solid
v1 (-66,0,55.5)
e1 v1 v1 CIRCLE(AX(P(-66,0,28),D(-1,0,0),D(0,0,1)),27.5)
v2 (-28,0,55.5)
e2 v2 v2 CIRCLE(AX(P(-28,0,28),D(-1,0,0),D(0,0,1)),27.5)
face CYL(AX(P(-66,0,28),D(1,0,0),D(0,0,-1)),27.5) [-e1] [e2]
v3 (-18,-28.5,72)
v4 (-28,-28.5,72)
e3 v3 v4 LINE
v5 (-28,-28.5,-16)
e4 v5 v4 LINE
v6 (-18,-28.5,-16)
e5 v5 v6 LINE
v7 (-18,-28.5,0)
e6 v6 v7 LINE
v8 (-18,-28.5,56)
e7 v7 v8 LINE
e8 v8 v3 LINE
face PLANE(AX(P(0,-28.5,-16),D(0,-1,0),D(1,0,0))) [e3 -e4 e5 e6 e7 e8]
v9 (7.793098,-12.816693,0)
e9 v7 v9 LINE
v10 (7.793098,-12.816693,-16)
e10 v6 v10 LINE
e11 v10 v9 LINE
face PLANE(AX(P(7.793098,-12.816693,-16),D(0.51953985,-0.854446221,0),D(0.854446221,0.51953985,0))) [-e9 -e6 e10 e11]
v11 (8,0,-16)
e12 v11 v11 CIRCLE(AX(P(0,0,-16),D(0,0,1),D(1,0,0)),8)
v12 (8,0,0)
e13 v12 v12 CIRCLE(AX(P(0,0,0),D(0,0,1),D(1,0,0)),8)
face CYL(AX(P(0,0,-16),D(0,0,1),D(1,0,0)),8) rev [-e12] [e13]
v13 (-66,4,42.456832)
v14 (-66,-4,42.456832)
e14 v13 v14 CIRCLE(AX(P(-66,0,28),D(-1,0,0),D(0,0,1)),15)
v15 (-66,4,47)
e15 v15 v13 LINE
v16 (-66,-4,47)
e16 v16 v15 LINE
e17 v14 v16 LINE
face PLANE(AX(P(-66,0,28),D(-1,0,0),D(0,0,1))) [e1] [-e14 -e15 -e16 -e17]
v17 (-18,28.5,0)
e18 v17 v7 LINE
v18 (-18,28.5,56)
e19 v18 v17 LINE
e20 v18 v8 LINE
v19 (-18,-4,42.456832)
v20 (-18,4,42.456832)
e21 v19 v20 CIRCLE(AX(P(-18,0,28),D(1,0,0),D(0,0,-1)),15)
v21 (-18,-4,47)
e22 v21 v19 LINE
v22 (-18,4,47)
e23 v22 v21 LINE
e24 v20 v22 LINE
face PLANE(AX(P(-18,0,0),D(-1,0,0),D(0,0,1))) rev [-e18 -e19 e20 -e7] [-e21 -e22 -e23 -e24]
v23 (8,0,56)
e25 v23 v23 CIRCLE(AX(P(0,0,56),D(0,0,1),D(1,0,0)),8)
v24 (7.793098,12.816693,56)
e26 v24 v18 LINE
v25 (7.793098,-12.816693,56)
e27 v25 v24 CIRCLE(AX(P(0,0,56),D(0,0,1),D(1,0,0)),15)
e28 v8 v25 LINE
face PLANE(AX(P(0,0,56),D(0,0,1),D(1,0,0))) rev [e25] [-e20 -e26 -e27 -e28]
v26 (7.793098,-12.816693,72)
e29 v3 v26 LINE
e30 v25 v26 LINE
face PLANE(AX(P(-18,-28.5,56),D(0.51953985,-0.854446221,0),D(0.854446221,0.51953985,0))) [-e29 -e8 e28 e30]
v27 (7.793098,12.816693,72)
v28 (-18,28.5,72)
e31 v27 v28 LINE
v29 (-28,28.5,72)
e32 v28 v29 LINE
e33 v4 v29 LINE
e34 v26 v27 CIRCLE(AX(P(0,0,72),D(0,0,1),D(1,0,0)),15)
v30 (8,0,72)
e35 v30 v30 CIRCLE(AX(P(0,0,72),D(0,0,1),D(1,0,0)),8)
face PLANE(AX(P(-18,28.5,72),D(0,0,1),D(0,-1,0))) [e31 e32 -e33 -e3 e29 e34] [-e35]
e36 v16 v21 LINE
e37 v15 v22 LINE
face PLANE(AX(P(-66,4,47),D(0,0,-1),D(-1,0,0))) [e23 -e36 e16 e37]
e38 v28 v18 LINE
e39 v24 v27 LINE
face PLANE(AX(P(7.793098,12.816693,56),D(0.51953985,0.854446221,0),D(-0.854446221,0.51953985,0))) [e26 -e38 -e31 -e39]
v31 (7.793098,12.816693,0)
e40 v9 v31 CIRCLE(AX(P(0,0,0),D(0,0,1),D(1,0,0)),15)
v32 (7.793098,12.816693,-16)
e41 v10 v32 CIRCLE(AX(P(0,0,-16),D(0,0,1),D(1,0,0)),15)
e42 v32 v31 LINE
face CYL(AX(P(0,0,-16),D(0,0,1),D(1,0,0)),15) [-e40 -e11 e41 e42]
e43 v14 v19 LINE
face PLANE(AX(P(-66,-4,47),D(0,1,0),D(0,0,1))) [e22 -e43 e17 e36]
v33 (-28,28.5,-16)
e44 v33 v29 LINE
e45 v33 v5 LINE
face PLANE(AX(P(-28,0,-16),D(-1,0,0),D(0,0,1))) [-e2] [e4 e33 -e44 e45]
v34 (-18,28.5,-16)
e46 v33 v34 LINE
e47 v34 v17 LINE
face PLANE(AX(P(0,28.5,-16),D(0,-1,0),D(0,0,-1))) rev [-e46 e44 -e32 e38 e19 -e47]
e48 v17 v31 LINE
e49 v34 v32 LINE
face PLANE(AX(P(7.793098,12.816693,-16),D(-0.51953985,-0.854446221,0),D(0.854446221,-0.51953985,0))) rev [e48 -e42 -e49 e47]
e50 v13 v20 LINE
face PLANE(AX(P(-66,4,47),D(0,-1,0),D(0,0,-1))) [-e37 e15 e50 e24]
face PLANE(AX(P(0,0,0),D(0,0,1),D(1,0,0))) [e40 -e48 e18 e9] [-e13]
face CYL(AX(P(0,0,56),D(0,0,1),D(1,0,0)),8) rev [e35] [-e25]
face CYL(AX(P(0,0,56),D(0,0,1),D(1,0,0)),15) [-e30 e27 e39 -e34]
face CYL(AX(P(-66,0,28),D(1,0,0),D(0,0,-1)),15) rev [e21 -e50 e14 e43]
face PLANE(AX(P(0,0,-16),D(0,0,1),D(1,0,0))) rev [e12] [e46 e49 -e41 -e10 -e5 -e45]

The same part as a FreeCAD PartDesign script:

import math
import FreeCAD as App
import Part
import Sketcher
Q = App.Units.Quantity

doc = App.newDocument("Part")
body = doc.addObject("PartDesign::Body", "Body")

# Sketch on XY plane
sketch1 = body.newObject("Sketcher::SketchObject", "Sketch")
sketch1.AttachmentSupport = (doc.getObject("XY_Plane"), [""])
sketch1.MapMode = "FlatFace"
sketch1.addGeometry(Part.LineSegment(App.Vector(-28, 28, 0), App.Vector(-28, -28, 0)), False)
sketch1.addGeometry(Part.LineSegment(App.Vector(-28, -28, 0), App.Vector(-18, -28, 0)), False)
sketch1.addGeometry(Part.LineSegment(App.Vector(-18, -28, 0), App.Vector(8, -13, 0)), False)
sketch1.addGeometry(Part.ArcOfCircle(Part.Circle(App.Vector(0, 0, 0), App.Vector(0, 0, 1), 15), math.radians(-59), math.radians(59)), False)
sketch1.addGeometry(Part.LineSegment(App.Vector(8, 13, 0), App.Vector(-18, 28, 0)), False)
sketch1.addGeometry(Part.LineSegment(App.Vector(-18, 28, 0), App.Vector(-28, 28, 0)), False)
sketch1.addGeometry(Part.Circle(App.Vector(0, 0, 0), App.Vector(0, 0, 1), 8), False)
sketch1.addConstraint(Sketcher.Constraint("Coincident", 0, 2, 1, 1))
sketch1.addConstraint(Sketcher.Constraint("Coincident", 1, 2, 2, 1))
sketch1.addConstraint(Sketcher.Constraint("Tangent", 2, 2, 3, 1))
sketch1.addConstraint(Sketcher.Constraint("Tangent", 3, 2, 4, 1))
sketch1.addConstraint(Sketcher.Constraint("Coincident", 4, 2, 5, 1))
sketch1.addConstraint(Sketcher.Constraint("Coincident", 5, 2, 0, 1))
sketch1.addConstraint(Sketcher.Constraint("Vertical", 0))
sketch1.addConstraint(Sketcher.Constraint("Horizontal", 1))
sketch1.addConstraint(Sketcher.Constraint("Horizontal", 5))
sketch1.addConstraint(Sketcher.Constraint("Coincident", 3, 3, -1, 1))
sketch1.addConstraint(Sketcher.Constraint("Coincident", 6, 3, -1, 1))
sketch1.addConstraint(Sketcher.Constraint("Symmetric", 1, 2, 4, 2, -1))
sketch1.addConstraint(Sketcher.Constraint("Diameter", 6, Q("16 mm")))
sketch1.addConstraint(Sketcher.Constraint("Radius", 3, Q("15 mm")))
sketch1.addConstraint(Sketcher.Constraint("DistanceX", 1, 1, 1, 2, Q("10 mm")))
sketch1.addConstraint(Sketcher.Constraint("DistanceY", 0, 2, 0, 1, Q("57 mm")))
sketch1.addConstraint(Sketcher.Constraint("DistanceX", 0, 2, -1, 1, Q("28 mm")))
pad1 = body.newObject("PartDesign::Pad", "Pad")
pad1.Profile = sketch1
pad1.Length = 16
pad1.Reversed = True

# Sketch on YZ plane
sketch2 = body.newObject("Sketcher::SketchObject", "Sketch001")
sketch2.AttachmentSupport = (doc.getObject("YZ_Plane"), [""])
sketch2.MapMode = "FlatFace"
sketch2.AttachmentOffset = App.Placement(App.Vector(0, 0, -28), App.Rotation())
sketch2.addGeometry(Part.LineSegment(App.Vector(28, -16, 0), App.Vector(-28, -16, 0)), False)
sketch2.addGeometry(Part.LineSegment(App.Vector(-28, -16, 0), App.Vector(-28, 72, 0)), False)
sketch2.addGeometry(Part.LineSegment(App.Vector(-28, 72, 0), App.Vector(28, 72, 0)), False)
sketch2.addGeometry(Part.LineSegment(App.Vector(28, 72, 0), App.Vector(28, -16, 0)), False)
sketch2.addConstraint(Sketcher.Constraint("Coincident", 0, 2, 1, 1))
sketch2.addConstraint(Sketcher.Constraint("Coincident", 1, 2, 2, 1))
sketch2.addConstraint(Sketcher.Constraint("Coincident", 2, 2, 3, 1))
sketch2.addConstraint(Sketcher.Constraint("Coincident", 3, 2, 0, 1))
sketch2.addConstraint(Sketcher.Constraint("Horizontal", 0))
sketch2.addConstraint(Sketcher.Constraint("Vertical", 1))
sketch2.addConstraint(Sketcher.Constraint("Horizontal", 2))
sketch2.addConstraint(Sketcher.Constraint("Vertical", 3))
sketch2.addConstraint(Sketcher.Constraint("DistanceX", 0, 2, 0, 1, Q("57 mm")))
sketch2.addConstraint(Sketcher.Constraint("DistanceY", 1, 1, 1, 2, Q("88 mm")))
sketch2.addConstraint(Sketcher.Constraint("DistanceY", 0, 2, -1, 1, Q("16 mm")))
sketch2.addConstraint(Sketcher.Constraint("DistanceX", 0, 2, -1, 1, Q("28.5 mm")))
pad2 = body.newObject("PartDesign::Pad", "Pad001")
pad2.Profile = sketch2
pad2.Length = 10

# Sketch on XY plane
sketch3 = body.newObject("Sketcher::SketchObject", "Sketch002")
sketch3.AttachmentSupport = (doc.getObject("XY_Plane"), [""])
sketch3.MapMode = "FlatFace"
sketch3.AttachmentOffset = App.Placement(App.Vector(0, 0, 72), App.Rotation())
sketch3.addGeometry(Part.LineSegment(App.Vector(8, 13, 0), App.Vector(-18, 28, 0)), False)
sketch3.addGeometry(Part.LineSegment(App.Vector(-18, 28, 0), App.Vector(-18, -28, 0)), False)
sketch3.addGeometry(Part.LineSegment(App.Vector(-18, -28, 0), App.Vector(8, -13, 0)), False)
sketch3.addGeometry(Part.ArcOfCircle(Part.Circle(App.Vector(0, 0, 0), App.Vector(0, 0, 1), 15), math.radians(-59), math.radians(59)), False)
sketch3.addGeometry(Part.Circle(App.Vector(0, 0, 0), App.Vector(0, 0, 1), 8), False)
sketch3.addConstraint(Sketcher.Constraint("Coincident", 0, 2, 1, 1))
sketch3.addConstraint(Sketcher.Constraint("Coincident", 1, 2, 2, 1))
sketch3.addConstraint(Sketcher.Constraint("Tangent", 2, 2, 3, 1))
sketch3.addConstraint(Sketcher.Constraint("Tangent", 3, 2, 0, 1))
sketch3.addConstraint(Sketcher.Constraint("Vertical", 1))
sketch3.addConstraint(Sketcher.Constraint("Coincident", 3, 3, -1, 1))
sketch3.addConstraint(Sketcher.Constraint("Coincident", 4, 3, -1, 1))
sketch3.addConstraint(Sketcher.Constraint("Vertical", 2, 2, 3, 2))
sketch3.addConstraint(Sketcher.Constraint("Diameter", 4, Q("16 mm")))
sketch3.addConstraint(Sketcher.Constraint("Radius", 3, Q("15 mm")))
sketch3.addConstraint(Sketcher.Constraint("DistanceY", 1, 2, 1, 1, Q("57 mm")))
sketch3.addConstraint(Sketcher.Constraint("DistanceX", 0, 2, -1, 1, Q("18 mm")))
pad3 = body.newObject("PartDesign::Pad", "Pad002")
pad3.Profile = sketch3
pad3.Length = 16
pad3.Reversed = True

# Sketch on YZ plane
sketch4 = body.newObject("Sketcher::SketchObject", "Sketch003")
sketch4.AttachmentSupport = (doc.getObject("YZ_Plane"), [""])
sketch4.MapMode = "FlatFace"
sketch4.AttachmentOffset = App.Placement(App.Vector(0, 0, -28), App.Rotation())
sketch4.addGeometry(Part.Circle(App.Vector(0, 28, 0), App.Vector(0, 0, 1), 27.5), False)
sketch4.addGeometry(Part.LineSegment(App.Vector(4, 42.5, 0), App.Vector(4, 47, 0)), False)
sketch4.addGeometry(Part.LineSegment(App.Vector(4, 47, 0), App.Vector(-4, 47, 0)), False)
sketch4.addGeometry(Part.LineSegment(App.Vector(-4, 47, 0), App.Vector(-4, 42.5, 0)), False)
sketch4.addGeometry(Part.ArcOfCircle(Part.Circle(App.Vector(0, 28, 0), App.Vector(0, 0, 1), 15), math.radians(105), math.radians(435)), False)
sketch4.addConstraint(Sketcher.Constraint("Coincident", 1, 2, 2, 1))
sketch4.addConstraint(Sketcher.Constraint("Coincident", 2, 2, 3, 1))
sketch4.addConstraint(Sketcher.Constraint("Coincident", 3, 2, 4, 1))
sketch4.addConstraint(Sketcher.Constraint("Coincident", 4, 2, 1, 1))
sketch4.addConstraint(Sketcher.Constraint("Vertical", 1))
sketch4.addConstraint(Sketcher.Constraint("Horizontal", 2))
sketch4.addConstraint(Sketcher.Constraint("Vertical", 3))
sketch4.addConstraint(Sketcher.Constraint("Coincident", 4, 3, 0, 3))
sketch4.addConstraint(Sketcher.Constraint("Symmetric", 3, 2, 4, 2, -2))
sketch4.addConstraint(Sketcher.Constraint("Diameter", 0, Q("55 mm")))
sketch4.addConstraint(Sketcher.Constraint("Radius", 4, Q("15 mm")))
sketch4.addConstraint(Sketcher.Constraint("DistanceX", 2, 2, 2, 1, Q("8 mm")))
sketch4.addConstraint(Sketcher.Constraint("DistanceY", -1, 1, 0, 3, Q("28 mm")))
sketch4.addConstraint(Sketcher.Constraint("DistanceY", -1, 1, 1, 2, Q("47 mm")))
pad4 = body.newObject("PartDesign::Pad", "Pad003")
pad4.Profile = sketch4
pad4.Length = 38
pad4.Reversed = True

# Sketch on YZ plane
sketch5 = body.newObject("Sketcher::SketchObject", "Sketch004")
sketch5.AttachmentSupport = (doc.getObject("YZ_Plane"), [""])
sketch5.MapMode = "FlatFace"
sketch5.AttachmentOffset = App.Placement(App.Vector(0, 0, -18), App.Rotation())
sketch5.addGeometry(Part.LineSegment(App.Vector(4, 47, 0), App.Vector(-4, 47, 0)), False)
sketch5.addGeometry(Part.LineSegment(App.Vector(-4, 47, 0), App.Vector(-4, 42.5, 0)), False)
sketch5.addGeometry(Part.ArcOfCircle(Part.Circle(App.Vector(0, 28, 0), App.Vector(0, 0, 1), 15), math.radians(105), math.radians(435)), False)
sketch5.addGeometry(Part.LineSegment(App.Vector(4, 42.5, 0), App.Vector(4, 47, 0)), False)
sketch5.addConstraint(Sketcher.Constraint("Coincident", 0, 2, 1, 1))
sketch5.addConstraint(Sketcher.Constraint("Coincident", 1, 2, 2, 1))
sketch5.addConstraint(Sketcher.Constraint("Coincident", 2, 2, 3, 1))
sketch5.addConstraint(Sketcher.Constraint("Coincident", 3, 2, 0, 1))
sketch5.addConstraint(Sketcher.Constraint("Horizontal", 0))
sketch5.addConstraint(Sketcher.Constraint("Vertical", 1))
sketch5.addConstraint(Sketcher.Constraint("Vertical", 3))
sketch5.addConstraint(Sketcher.Constraint("Symmetric", 1, 2, 2, 2, -2))
sketch5.addConstraint(Sketcher.Constraint("Radius", 2, Q("15 mm")))
sketch5.addConstraint(Sketcher.Constraint("DistanceX", 0, 2, 0, 1, Q("8 mm")))
sketch5.addConstraint(Sketcher.Constraint("DistanceY", -1, 1, 2, 3, Q("28 mm")))
sketch5.addConstraint(Sketcher.Constraint("DistanceY", -1, 1, 0, 2, Q("47 mm")))
pocket1 = body.newObject("PartDesign::Pocket", "Pocket")
pocket1.Profile = sketch5
pocket1.Type = "ThroughAll"

doc.recompute()
